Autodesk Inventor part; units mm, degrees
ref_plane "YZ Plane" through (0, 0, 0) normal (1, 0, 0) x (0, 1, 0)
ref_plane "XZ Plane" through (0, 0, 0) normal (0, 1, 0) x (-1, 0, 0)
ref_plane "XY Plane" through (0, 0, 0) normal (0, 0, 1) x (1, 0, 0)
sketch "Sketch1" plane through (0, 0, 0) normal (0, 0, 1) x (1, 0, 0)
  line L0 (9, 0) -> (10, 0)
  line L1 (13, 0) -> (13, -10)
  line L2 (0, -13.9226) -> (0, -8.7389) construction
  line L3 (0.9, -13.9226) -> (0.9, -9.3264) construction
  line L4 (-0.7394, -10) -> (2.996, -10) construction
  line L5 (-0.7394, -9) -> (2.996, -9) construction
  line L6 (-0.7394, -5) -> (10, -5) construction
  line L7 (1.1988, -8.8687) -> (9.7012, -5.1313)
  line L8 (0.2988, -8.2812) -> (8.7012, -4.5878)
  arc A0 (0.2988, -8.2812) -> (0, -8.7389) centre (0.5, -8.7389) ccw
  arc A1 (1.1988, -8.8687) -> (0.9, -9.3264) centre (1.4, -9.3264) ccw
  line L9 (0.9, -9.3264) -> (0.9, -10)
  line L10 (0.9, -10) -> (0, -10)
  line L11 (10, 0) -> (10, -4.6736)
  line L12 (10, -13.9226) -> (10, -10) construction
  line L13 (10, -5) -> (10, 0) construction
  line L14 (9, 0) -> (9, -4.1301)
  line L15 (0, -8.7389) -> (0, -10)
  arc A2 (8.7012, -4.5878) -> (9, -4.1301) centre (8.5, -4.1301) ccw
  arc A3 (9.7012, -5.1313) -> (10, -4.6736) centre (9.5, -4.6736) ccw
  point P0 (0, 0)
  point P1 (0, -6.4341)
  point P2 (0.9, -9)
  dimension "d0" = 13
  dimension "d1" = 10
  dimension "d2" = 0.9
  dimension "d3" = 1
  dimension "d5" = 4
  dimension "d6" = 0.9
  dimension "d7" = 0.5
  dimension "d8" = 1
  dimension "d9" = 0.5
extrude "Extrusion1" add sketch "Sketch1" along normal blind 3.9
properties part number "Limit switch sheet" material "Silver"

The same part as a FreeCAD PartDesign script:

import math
import FreeCAD as App
import Part
import Sketcher
from FreeCAD import Vector
Q = App.Units.Quantity

doc = App.newDocument("Part")
body = doc.addObject("PartDesign::Body", "Body")

sketch1 = body.newObject("Sketcher::SketchObject", "Sketch")
sketch1.AttachmentSupport = (doc.getObject("XY_Plane"), [""])
sketch1.MapMode = "FlatFace"
sketch1.addGeometry(Part.LineSegment(Vector(10, 0, 0), Vector(9, 0, 0)), False)
sketch1.addGeometry(Part.LineSegment(Vector(9, 0, 0), Vector(9, -4.13, 0)), False)
sketch1.addGeometry(Part.ArcOfCircle(Part.Circle(Vector(8.5, -4.13, 0), Vector(0, 0, 1), 0.5), math.radians(-66), math.radians(0)), False)
sketch1.addGeometry(Part.LineSegment(Vector(8.7, -4.59, 0), Vector(0.3, -8.28, 0)), False)
sketch1.addGeometry(Part.ArcOfCircle(Part.Circle(Vector(0.5, -8.74, 0), Vector(0, 0, 1), 0.5), math.radians(114), math.radians(180)), False)
sketch1.addGeometry(Part.LineSegment(Vector(0, -8.74, 0), Vector(0, -10, 0)), False)
sketch1.addGeometry(Part.LineSegment(Vector(0, -10, 0), Vector(0.9, -10, 0)), False)
sketch1.addGeometry(Part.LineSegment(Vector(0.9, -10, 0), Vector(0.9, -9.33, 0)), False)
sketch1.addGeometry(Part.ArcOfCircle(Part.Circle(Vector(1.4, -9.33, 0), Vector(0, 0, 1), 0.5), math.radians(114), math.radians(180)), False)
sketch1.addGeometry(Part.LineSegment(Vector(1.2, -8.87, 0), Vector(9.7, -5.13, 0)), False)
sketch1.addGeometry(Part.ArcOfCircle(Part.Circle(Vector(9.5, -4.67, 0), Vector(0, 0, 1), 0.5), math.radians(-66), math.radians(0)), False)
sketch1.addGeometry(Part.LineSegment(Vector(10, -4.67, 0), Vector(10, 0, 0)), False)
sketch1.addConstraint(Sketcher.Constraint("Coincident", 0, 2, 1, 1))
sketch1.addConstraint(Sketcher.Constraint("Tangent", 1, 2, 2, 2))
sketch1.addConstraint(Sketcher.Constraint("Tangent", 2, 1, 3, 1))
sketch1.addConstraint(Sketcher.Constraint("Tangent", 3, 2, 4, 1))
sketch1.addConstraint(Sketcher.Constraint("Tangent", 4, 2, 5, 1))
sketch1.addConstraint(Sketcher.Constraint("Coincident", 5, 2, 6, 1))
sketch1.addConstraint(Sketcher.Constraint("Coincident", 6, 2, 7, 1))
sketch1.addConstraint(Sketcher.Constraint("Tangent", 7, 2, 8, 2))
sketch1.addConstraint(Sketcher.Constraint("Tangent", 8, 1, 9, 1))
sketch1.addConstraint(Sketcher.Constraint("Tangent", 9, 2, 10, 1))
sketch1.addConstraint(Sketcher.Constraint("Tangent", 10, 2, 11, 1))
sketch1.addConstraint(Sketcher.Constraint("Coincident", 11, 2, 0, 1))
sketch1.addConstraint(Sketcher.Constraint("Horizontal", 0))
sketch1.addConstraint(Sketcher.Constraint("Vertical", 1))
sketch1.addConstraint(Sketcher.Constraint("Vertical", 5))
sketch1.addConstraint(Sketcher.Constraint("Horizontal", 6))
sketch1.addConstraint(Sketcher.Constraint("Vertical", 7))
sketch1.addConstraint(Sketcher.Constraint("Vertical", 11))
sketch1.addConstraint(Sketcher.Constraint("Equal", 2, 4))
sketch1.addConstraint(Sketcher.Constraint("Equal", 4, 8))
sketch1.addConstraint(Sketcher.Constraint("Equal", 8, 10))
sketch1.addConstraint(Sketcher.Constraint("PointOnObject", 0, 2, -1))
sketch1.addConstraint(Sketcher.Constraint("PointOnObject", 4, 2, -2))
sketch1.addConstraint(Sketcher.Constraint("Parallel", 3, 9))
sketch1.addConstraint(Sketcher.Constraint("Radius", 2, Q("0.5 mm")))
sketch1.addConstraint(Sketcher.Constraint("DistanceX", 0, 2, 0, 1, Q("1 mm")))
sketch1.addConstraint(Sketcher.Constraint("DistanceX", 6, 1, 6, 2, Q("0.9 mm")))
sketch1.addConstraint(Sketcher.Constraint("DistanceY", 5, 2, -1, 1, Q("10 mm")))
sketch1.addConstraint(Sketcher.Constraint("DistanceX", -1, 1, 10, 2, Q("10 mm")))
sketch1.addConstraint(Sketcher.Constraint("DistanceY", 1, 2, 1, 1, Q("4.13 mm")))
sketch1.addConstraint(Sketcher.Constraint("Angle", 9, Q("23.7289 deg")))
sketch1.addConstraint(Sketcher.Constraint("DistanceY", 7, 1, 7, 2, Q("0.6736 mm")))
pad1 = body.newObject("PartDesign::Pad", "Pad")
pad1.Profile = sketch1
pad1.Length = 3.9

doc.recompute()
